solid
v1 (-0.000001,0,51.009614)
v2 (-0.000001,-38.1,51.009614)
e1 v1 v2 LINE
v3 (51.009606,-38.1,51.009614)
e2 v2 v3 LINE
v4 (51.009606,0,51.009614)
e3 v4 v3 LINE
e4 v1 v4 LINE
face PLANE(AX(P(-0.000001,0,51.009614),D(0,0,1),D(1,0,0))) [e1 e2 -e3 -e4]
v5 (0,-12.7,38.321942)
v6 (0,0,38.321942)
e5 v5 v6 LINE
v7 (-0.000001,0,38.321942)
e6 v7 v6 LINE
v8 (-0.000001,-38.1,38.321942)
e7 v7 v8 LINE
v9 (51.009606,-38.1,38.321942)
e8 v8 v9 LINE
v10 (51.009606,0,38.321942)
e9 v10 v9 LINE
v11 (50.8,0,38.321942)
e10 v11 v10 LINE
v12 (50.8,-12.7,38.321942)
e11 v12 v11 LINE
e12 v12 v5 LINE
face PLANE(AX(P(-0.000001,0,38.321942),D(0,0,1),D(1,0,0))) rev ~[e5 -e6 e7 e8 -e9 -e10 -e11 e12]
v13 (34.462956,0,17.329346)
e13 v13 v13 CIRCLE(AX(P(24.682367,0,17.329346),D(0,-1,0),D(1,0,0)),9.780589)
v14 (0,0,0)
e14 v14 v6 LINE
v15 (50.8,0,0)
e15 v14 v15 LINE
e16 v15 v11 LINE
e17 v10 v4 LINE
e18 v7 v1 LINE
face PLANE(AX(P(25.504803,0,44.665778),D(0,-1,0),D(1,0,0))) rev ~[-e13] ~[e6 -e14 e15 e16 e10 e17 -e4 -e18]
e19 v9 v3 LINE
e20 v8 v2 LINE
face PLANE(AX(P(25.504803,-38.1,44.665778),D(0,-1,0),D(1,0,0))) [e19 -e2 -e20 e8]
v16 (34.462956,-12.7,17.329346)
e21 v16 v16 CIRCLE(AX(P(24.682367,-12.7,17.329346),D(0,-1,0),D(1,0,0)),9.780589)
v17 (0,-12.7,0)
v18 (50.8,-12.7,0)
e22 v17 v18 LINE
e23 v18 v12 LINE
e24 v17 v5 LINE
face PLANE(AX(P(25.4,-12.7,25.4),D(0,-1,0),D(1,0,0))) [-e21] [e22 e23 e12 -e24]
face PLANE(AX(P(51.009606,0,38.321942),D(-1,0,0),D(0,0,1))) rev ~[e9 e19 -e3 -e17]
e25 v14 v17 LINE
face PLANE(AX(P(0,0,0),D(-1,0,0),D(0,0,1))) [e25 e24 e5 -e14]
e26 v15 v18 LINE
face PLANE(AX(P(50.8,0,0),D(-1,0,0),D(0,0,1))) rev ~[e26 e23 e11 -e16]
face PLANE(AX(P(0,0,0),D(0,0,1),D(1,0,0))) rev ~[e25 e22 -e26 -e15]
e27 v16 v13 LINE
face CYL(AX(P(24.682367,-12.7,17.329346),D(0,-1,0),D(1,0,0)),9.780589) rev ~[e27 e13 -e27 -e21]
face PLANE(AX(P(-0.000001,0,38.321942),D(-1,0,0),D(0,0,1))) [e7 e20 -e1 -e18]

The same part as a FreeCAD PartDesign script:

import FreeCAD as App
import Part
import Sketcher
from FreeCAD import Vector
Q = App.Units.Quantity

doc = App.newDocument("Part")
body = doc.addObject("PartDesign::Body", "Body")

sketch1 = body.newObject("Sketcher::SketchObject", "Sketch")
sketch1.AttachmentSupport = (doc.getObject("XZ_Plane"), [""])
sketch1.MapMode = "FlatFace"
sketch1.addGeometry([
    Part.LineSegment(Vector(0, 51, 0), Vector(0, 0, 0)),
    Part.LineSegment(Vector(0, 0, 0), Vector(51, 0, 0)),
    Part.LineSegment(Vector(51, 0, 0), Vector(51, 51, 0)),
    Part.LineSegment(Vector(51, 51, 0), Vector(0, 51, 0)),
], False)
sketch1.addConstraint([
    Sketcher.Constraint("Coincident", 0, 2, 1, 1),
    Sketcher.Constraint("Coincident", 1, 2, 2, 1),
    Sketcher.Constraint("Coincident", 2, 2, 3, 1),
    Sketcher.Constraint("Coincident", 3, 2, 0, 1),
    Sketcher.Constraint("Vertical", 0),
    Sketcher.Constraint("Horizontal", 1),
    Sketcher.Constraint("Vertical", 2),
    Sketcher.Constraint("Horizontal", 3),
    Sketcher.Constraint("Coincident", 0, 2, -1, 1),
    Sketcher.Constraint("Equal", 3, 0),
    Sketcher.Constraint("DistanceX", 1, 1, 1, 2, Q("2 in")),
])
pad1 = body.newObject("PartDesign::Pad", "Pad")
pad1.Profile = sketch1
pad1.Length = Q("0.5 in")

sketch2 = body.newObject("Sketcher::SketchObject", "Sketch001")
sketch2.AttachmentSupport = (doc.getObject("XZ_Plane"), [""])
sketch2.MapMode = "FlatFace"
sketch2.addGeometry([
    Part.LineSegment(Vector(0, 51, 0), Vector(0, 38, 0)),
    Part.LineSegment(Vector(0, 38, 0), Vector(51, 38, 0)),
    Part.LineSegment(Vector(51, 38, 0), Vector(51, 51, 0)),
    Part.LineSegment(Vector(51, 51, 0), Vector(0, 51, 0)),
], False)
sketch2.addConstraint([
    Sketcher.Constraint("Coincident", 0, 2, 1, 1),
    Sketcher.Constraint("Coincident", 1, 2, 2, 1),
    Sketcher.Constraint("Coincident", 2, 2, 3, 1),
    Sketcher.Constraint("Coincident", 3, 2, 0, 1),
    Sketcher.Constraint("Vertical", 0),
    Sketcher.Constraint("Horizontal", 1),
    Sketcher.Constraint("Vertical", 2),
    Sketcher.Constraint("Horizontal", 3),
    Sketcher.Constraint("PointOnObject", 0, 2, -2),
    Sketcher.Constraint("DistanceY", 0, 2, 0, 1, Q("12.687672 mm")),
    Sketcher.Constraint("DistanceX", 1, 1, 1, 2, Q("51.009607 mm")),
    Sketcher.Constraint("DistanceY", -1, 1, 0, 2, Q("38.321942 mm")),
])
pad2 = body.newObject("PartDesign::Pad", "Pad001")
pad2.Profile = sketch2
pad2.Length = Q("1.5 in")

sketch3 = body.newObject("Sketcher::SketchObject", "Sketch002")
sketch3.AttachmentSupport = (doc.getObject("XZ_Plane"), [""])
sketch3.MapMode = "FlatFace"
sketch3.AttachmentOffset = App.Placement(Vector(0, 0, 0.5 * 25.4), App.Rotation())
sketch3.addGeometry(Part.Circle(Vector(25, 17, 0), Vector(0, 0, 1), 10), False)
sketch3.addConstraint([
    Sketcher.Constraint("Diameter", 0, Q("19.561178 mm")),
    Sketcher.Constraint("DistanceX", -1, 1, 0, 3, Q("24.682367 mm")),
    Sketcher.Constraint("DistanceY", -1, 1, 0, 3, Q("17.329346 mm")),
])
pocket1 = body.newObject("PartDesign::Pocket", "Pocket")
pocket1.Profile = sketch3
pocket1.Type = "ThroughAll"

doc.recompute()
